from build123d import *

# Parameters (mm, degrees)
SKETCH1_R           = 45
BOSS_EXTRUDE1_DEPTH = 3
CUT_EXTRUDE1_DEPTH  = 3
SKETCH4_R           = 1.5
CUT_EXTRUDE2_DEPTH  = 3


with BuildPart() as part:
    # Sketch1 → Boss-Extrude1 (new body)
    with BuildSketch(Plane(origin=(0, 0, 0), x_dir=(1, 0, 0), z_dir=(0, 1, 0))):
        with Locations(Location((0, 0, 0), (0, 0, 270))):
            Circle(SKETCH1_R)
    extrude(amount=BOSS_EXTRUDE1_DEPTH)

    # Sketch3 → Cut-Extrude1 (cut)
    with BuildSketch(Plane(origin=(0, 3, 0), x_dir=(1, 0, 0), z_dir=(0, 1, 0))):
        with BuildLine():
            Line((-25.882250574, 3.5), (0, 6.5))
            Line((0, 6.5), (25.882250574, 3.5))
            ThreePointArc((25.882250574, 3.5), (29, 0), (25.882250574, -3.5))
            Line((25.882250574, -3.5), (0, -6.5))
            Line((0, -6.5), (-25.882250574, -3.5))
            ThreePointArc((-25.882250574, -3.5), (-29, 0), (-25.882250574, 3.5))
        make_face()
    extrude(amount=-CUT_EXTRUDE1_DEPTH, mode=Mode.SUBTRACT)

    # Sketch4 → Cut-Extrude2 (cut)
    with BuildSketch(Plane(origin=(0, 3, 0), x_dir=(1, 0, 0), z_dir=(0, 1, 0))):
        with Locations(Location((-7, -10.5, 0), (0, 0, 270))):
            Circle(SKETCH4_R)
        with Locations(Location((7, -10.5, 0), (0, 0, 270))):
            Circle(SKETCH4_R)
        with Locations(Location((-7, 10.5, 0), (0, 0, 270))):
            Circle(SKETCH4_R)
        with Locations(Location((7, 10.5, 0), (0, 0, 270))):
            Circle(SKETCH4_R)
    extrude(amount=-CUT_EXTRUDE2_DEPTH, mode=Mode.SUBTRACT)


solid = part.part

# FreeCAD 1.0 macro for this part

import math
import FreeCAD as App
import Part
import Sketcher
from FreeCAD import Vector

doc = App.newDocument("Part")
body = doc.addObject("PartDesign::Body", "Body")

sketch1 = body.newObject("Sketcher::SketchObject", "Sketch")
sketch1.AttachmentSupport = (doc.getObject("XZ_Plane"), [""])
sketch1.MapMode = "FlatFace"
sketch1.addGeometry(Part.Circle(Vector(0, 0, 0), Vector(0, 0, 1), 45), False)
sketch1.addConstraint([
    Sketcher.Constraint("Coincident", 0, 3, -1, 1),
    Sketcher.Constraint("Diameter", 0, 90.0),
])
pad1 = body.newObject("PartDesign::Pad", "Pad")
pad1.Profile = sketch1
pad1.Length = 3
pad1.Reversed = True

sketch2 = body.newObject("Sketcher::SketchObject", "Sketch001")
sketch2.AttachmentSupport = (doc.getObject("XZ_Plane"), [""])
sketch2.MapMode = "FlatFace"
sketch2.AttachmentOffset = App.Placement(Vector(0, 0, -3), App.Rotation())
sketch2.addGeometry([
    Part.LineSegment(Vector(0, -6.5, 0), Vector(-25.9, -3.5, 0)),
    Part.ArcOfCircle(Part.Circle(Vector(-25.5, 0, 0), Vector(0, 0, 1), 3.5), math.radians(97), math.radians(263)),
    Part.LineSegment(Vector(-25.9, 3.5, 0), Vector(0, 6.5, 0)),
    Part.LineSegment(Vector(0, 6.5, 0), Vector(25.9, 3.5, 0)),
    Part.ArcOfCircle(Part.Circle(Vector(25.5, 0, 0), Vector(0, 0, 1), 3.5), math.radians(-83), math.radians(83)),
    Part.LineSegment(Vector(25.9, -3.5, 0), Vector(0, -6.5, 0)),
], False)
sketch2.addConstraint([
    Sketcher.Constraint("Tangent", 0, 2, 1, 2),
    Sketcher.Constraint("Tangent", 1, 1, 2, 1),
    Sketcher.Constraint("Coincident", 2, 2, 3, 1),
    Sketcher.Constraint("Tangent", 3, 2, 4, 2),
    Sketcher.Constraint("Tangent", 4, 1, 5, 1),
    Sketcher.Constraint("Coincident", 5, 2, 0, 1),
    Sketcher.Constraint("Equal", 1, 4),
    Sketcher.Constraint("Symmetric", 1, 3, 4, 3, -1, 1),
    Sketcher.Constraint("Symmetric", 2, 2, 5, 2, -1, 1),
    Sketcher.Constraint("Symmetric", 1, 1, 3, 2, -2),
    Sketcher.Constraint("DistanceY", 0, 2, 1, 1, 7.0),
    Sketcher.Constraint("DistanceY", 1, 1, 2, 2, 3.0),
    Sketcher.Constraint("DistanceX", 1, 1, 3, 2, 51.764501),
])
pocket1 = body.newObject("PartDesign::Pocket", "Pocket")
pocket1.Profile = sketch2
pocket1.Length = 3
pocket1.Reversed = True

sketch3 = body.newObject("Sketcher::SketchObject", "Sketch002")
sketch3.AttachmentSupport = (doc.getObject("XZ_Plane"), [""])
sketch3.MapMode = "FlatFace"
sketch3.AttachmentOffset = App.Placement(Vector(0, 0, -3), App.Rotation())
sketch3.addGeometry([
    Part.Circle(Vector(-7, 10.5, 0), Vector(0, 0, 1), 1.5),
    Part.Circle(Vector(7, 10.5, 0), Vector(0, 0, 1), 1.5),
    Part.Circle(Vector(-7, -10.5, 0), Vector(0, 0, 1), 1.5),
    Part.Circle(Vector(7, -10.5, 0), Vector(0, 0, 1), 1.5),
], False)
sketch3.addConstraint([
    Sketcher.Constraint("Equal", 0, 1),
    Sketcher.Constraint("Equal", 1, 2),
    Sketcher.Constraint("Equal", 2, 3),
    Sketcher.Constraint("Symmetric", 1, 3, 2, 3, -1, 1),
    Sketcher.Constraint("Symmetric", 0, 3, 3, 3, -1, 1),
    Sketcher.Constraint("Symmetric", 0, 3, 1, 3, -2),
    Sketcher.Constraint("Diameter", 0, 3.0),
    Sketcher.Constraint("DistanceX", 0, 3, -1, 1, 7.0),
    Sketcher.Constraint("DistanceY", 2, 3, 0, 3, 21.0),
])
pocket2 = body.newObject("PartDesign::Pocket", "Pocket001")
pocket2.Profile = sketch3
pocket2.Length = 3
pocket2.Reversed = True

doc.recompute()
